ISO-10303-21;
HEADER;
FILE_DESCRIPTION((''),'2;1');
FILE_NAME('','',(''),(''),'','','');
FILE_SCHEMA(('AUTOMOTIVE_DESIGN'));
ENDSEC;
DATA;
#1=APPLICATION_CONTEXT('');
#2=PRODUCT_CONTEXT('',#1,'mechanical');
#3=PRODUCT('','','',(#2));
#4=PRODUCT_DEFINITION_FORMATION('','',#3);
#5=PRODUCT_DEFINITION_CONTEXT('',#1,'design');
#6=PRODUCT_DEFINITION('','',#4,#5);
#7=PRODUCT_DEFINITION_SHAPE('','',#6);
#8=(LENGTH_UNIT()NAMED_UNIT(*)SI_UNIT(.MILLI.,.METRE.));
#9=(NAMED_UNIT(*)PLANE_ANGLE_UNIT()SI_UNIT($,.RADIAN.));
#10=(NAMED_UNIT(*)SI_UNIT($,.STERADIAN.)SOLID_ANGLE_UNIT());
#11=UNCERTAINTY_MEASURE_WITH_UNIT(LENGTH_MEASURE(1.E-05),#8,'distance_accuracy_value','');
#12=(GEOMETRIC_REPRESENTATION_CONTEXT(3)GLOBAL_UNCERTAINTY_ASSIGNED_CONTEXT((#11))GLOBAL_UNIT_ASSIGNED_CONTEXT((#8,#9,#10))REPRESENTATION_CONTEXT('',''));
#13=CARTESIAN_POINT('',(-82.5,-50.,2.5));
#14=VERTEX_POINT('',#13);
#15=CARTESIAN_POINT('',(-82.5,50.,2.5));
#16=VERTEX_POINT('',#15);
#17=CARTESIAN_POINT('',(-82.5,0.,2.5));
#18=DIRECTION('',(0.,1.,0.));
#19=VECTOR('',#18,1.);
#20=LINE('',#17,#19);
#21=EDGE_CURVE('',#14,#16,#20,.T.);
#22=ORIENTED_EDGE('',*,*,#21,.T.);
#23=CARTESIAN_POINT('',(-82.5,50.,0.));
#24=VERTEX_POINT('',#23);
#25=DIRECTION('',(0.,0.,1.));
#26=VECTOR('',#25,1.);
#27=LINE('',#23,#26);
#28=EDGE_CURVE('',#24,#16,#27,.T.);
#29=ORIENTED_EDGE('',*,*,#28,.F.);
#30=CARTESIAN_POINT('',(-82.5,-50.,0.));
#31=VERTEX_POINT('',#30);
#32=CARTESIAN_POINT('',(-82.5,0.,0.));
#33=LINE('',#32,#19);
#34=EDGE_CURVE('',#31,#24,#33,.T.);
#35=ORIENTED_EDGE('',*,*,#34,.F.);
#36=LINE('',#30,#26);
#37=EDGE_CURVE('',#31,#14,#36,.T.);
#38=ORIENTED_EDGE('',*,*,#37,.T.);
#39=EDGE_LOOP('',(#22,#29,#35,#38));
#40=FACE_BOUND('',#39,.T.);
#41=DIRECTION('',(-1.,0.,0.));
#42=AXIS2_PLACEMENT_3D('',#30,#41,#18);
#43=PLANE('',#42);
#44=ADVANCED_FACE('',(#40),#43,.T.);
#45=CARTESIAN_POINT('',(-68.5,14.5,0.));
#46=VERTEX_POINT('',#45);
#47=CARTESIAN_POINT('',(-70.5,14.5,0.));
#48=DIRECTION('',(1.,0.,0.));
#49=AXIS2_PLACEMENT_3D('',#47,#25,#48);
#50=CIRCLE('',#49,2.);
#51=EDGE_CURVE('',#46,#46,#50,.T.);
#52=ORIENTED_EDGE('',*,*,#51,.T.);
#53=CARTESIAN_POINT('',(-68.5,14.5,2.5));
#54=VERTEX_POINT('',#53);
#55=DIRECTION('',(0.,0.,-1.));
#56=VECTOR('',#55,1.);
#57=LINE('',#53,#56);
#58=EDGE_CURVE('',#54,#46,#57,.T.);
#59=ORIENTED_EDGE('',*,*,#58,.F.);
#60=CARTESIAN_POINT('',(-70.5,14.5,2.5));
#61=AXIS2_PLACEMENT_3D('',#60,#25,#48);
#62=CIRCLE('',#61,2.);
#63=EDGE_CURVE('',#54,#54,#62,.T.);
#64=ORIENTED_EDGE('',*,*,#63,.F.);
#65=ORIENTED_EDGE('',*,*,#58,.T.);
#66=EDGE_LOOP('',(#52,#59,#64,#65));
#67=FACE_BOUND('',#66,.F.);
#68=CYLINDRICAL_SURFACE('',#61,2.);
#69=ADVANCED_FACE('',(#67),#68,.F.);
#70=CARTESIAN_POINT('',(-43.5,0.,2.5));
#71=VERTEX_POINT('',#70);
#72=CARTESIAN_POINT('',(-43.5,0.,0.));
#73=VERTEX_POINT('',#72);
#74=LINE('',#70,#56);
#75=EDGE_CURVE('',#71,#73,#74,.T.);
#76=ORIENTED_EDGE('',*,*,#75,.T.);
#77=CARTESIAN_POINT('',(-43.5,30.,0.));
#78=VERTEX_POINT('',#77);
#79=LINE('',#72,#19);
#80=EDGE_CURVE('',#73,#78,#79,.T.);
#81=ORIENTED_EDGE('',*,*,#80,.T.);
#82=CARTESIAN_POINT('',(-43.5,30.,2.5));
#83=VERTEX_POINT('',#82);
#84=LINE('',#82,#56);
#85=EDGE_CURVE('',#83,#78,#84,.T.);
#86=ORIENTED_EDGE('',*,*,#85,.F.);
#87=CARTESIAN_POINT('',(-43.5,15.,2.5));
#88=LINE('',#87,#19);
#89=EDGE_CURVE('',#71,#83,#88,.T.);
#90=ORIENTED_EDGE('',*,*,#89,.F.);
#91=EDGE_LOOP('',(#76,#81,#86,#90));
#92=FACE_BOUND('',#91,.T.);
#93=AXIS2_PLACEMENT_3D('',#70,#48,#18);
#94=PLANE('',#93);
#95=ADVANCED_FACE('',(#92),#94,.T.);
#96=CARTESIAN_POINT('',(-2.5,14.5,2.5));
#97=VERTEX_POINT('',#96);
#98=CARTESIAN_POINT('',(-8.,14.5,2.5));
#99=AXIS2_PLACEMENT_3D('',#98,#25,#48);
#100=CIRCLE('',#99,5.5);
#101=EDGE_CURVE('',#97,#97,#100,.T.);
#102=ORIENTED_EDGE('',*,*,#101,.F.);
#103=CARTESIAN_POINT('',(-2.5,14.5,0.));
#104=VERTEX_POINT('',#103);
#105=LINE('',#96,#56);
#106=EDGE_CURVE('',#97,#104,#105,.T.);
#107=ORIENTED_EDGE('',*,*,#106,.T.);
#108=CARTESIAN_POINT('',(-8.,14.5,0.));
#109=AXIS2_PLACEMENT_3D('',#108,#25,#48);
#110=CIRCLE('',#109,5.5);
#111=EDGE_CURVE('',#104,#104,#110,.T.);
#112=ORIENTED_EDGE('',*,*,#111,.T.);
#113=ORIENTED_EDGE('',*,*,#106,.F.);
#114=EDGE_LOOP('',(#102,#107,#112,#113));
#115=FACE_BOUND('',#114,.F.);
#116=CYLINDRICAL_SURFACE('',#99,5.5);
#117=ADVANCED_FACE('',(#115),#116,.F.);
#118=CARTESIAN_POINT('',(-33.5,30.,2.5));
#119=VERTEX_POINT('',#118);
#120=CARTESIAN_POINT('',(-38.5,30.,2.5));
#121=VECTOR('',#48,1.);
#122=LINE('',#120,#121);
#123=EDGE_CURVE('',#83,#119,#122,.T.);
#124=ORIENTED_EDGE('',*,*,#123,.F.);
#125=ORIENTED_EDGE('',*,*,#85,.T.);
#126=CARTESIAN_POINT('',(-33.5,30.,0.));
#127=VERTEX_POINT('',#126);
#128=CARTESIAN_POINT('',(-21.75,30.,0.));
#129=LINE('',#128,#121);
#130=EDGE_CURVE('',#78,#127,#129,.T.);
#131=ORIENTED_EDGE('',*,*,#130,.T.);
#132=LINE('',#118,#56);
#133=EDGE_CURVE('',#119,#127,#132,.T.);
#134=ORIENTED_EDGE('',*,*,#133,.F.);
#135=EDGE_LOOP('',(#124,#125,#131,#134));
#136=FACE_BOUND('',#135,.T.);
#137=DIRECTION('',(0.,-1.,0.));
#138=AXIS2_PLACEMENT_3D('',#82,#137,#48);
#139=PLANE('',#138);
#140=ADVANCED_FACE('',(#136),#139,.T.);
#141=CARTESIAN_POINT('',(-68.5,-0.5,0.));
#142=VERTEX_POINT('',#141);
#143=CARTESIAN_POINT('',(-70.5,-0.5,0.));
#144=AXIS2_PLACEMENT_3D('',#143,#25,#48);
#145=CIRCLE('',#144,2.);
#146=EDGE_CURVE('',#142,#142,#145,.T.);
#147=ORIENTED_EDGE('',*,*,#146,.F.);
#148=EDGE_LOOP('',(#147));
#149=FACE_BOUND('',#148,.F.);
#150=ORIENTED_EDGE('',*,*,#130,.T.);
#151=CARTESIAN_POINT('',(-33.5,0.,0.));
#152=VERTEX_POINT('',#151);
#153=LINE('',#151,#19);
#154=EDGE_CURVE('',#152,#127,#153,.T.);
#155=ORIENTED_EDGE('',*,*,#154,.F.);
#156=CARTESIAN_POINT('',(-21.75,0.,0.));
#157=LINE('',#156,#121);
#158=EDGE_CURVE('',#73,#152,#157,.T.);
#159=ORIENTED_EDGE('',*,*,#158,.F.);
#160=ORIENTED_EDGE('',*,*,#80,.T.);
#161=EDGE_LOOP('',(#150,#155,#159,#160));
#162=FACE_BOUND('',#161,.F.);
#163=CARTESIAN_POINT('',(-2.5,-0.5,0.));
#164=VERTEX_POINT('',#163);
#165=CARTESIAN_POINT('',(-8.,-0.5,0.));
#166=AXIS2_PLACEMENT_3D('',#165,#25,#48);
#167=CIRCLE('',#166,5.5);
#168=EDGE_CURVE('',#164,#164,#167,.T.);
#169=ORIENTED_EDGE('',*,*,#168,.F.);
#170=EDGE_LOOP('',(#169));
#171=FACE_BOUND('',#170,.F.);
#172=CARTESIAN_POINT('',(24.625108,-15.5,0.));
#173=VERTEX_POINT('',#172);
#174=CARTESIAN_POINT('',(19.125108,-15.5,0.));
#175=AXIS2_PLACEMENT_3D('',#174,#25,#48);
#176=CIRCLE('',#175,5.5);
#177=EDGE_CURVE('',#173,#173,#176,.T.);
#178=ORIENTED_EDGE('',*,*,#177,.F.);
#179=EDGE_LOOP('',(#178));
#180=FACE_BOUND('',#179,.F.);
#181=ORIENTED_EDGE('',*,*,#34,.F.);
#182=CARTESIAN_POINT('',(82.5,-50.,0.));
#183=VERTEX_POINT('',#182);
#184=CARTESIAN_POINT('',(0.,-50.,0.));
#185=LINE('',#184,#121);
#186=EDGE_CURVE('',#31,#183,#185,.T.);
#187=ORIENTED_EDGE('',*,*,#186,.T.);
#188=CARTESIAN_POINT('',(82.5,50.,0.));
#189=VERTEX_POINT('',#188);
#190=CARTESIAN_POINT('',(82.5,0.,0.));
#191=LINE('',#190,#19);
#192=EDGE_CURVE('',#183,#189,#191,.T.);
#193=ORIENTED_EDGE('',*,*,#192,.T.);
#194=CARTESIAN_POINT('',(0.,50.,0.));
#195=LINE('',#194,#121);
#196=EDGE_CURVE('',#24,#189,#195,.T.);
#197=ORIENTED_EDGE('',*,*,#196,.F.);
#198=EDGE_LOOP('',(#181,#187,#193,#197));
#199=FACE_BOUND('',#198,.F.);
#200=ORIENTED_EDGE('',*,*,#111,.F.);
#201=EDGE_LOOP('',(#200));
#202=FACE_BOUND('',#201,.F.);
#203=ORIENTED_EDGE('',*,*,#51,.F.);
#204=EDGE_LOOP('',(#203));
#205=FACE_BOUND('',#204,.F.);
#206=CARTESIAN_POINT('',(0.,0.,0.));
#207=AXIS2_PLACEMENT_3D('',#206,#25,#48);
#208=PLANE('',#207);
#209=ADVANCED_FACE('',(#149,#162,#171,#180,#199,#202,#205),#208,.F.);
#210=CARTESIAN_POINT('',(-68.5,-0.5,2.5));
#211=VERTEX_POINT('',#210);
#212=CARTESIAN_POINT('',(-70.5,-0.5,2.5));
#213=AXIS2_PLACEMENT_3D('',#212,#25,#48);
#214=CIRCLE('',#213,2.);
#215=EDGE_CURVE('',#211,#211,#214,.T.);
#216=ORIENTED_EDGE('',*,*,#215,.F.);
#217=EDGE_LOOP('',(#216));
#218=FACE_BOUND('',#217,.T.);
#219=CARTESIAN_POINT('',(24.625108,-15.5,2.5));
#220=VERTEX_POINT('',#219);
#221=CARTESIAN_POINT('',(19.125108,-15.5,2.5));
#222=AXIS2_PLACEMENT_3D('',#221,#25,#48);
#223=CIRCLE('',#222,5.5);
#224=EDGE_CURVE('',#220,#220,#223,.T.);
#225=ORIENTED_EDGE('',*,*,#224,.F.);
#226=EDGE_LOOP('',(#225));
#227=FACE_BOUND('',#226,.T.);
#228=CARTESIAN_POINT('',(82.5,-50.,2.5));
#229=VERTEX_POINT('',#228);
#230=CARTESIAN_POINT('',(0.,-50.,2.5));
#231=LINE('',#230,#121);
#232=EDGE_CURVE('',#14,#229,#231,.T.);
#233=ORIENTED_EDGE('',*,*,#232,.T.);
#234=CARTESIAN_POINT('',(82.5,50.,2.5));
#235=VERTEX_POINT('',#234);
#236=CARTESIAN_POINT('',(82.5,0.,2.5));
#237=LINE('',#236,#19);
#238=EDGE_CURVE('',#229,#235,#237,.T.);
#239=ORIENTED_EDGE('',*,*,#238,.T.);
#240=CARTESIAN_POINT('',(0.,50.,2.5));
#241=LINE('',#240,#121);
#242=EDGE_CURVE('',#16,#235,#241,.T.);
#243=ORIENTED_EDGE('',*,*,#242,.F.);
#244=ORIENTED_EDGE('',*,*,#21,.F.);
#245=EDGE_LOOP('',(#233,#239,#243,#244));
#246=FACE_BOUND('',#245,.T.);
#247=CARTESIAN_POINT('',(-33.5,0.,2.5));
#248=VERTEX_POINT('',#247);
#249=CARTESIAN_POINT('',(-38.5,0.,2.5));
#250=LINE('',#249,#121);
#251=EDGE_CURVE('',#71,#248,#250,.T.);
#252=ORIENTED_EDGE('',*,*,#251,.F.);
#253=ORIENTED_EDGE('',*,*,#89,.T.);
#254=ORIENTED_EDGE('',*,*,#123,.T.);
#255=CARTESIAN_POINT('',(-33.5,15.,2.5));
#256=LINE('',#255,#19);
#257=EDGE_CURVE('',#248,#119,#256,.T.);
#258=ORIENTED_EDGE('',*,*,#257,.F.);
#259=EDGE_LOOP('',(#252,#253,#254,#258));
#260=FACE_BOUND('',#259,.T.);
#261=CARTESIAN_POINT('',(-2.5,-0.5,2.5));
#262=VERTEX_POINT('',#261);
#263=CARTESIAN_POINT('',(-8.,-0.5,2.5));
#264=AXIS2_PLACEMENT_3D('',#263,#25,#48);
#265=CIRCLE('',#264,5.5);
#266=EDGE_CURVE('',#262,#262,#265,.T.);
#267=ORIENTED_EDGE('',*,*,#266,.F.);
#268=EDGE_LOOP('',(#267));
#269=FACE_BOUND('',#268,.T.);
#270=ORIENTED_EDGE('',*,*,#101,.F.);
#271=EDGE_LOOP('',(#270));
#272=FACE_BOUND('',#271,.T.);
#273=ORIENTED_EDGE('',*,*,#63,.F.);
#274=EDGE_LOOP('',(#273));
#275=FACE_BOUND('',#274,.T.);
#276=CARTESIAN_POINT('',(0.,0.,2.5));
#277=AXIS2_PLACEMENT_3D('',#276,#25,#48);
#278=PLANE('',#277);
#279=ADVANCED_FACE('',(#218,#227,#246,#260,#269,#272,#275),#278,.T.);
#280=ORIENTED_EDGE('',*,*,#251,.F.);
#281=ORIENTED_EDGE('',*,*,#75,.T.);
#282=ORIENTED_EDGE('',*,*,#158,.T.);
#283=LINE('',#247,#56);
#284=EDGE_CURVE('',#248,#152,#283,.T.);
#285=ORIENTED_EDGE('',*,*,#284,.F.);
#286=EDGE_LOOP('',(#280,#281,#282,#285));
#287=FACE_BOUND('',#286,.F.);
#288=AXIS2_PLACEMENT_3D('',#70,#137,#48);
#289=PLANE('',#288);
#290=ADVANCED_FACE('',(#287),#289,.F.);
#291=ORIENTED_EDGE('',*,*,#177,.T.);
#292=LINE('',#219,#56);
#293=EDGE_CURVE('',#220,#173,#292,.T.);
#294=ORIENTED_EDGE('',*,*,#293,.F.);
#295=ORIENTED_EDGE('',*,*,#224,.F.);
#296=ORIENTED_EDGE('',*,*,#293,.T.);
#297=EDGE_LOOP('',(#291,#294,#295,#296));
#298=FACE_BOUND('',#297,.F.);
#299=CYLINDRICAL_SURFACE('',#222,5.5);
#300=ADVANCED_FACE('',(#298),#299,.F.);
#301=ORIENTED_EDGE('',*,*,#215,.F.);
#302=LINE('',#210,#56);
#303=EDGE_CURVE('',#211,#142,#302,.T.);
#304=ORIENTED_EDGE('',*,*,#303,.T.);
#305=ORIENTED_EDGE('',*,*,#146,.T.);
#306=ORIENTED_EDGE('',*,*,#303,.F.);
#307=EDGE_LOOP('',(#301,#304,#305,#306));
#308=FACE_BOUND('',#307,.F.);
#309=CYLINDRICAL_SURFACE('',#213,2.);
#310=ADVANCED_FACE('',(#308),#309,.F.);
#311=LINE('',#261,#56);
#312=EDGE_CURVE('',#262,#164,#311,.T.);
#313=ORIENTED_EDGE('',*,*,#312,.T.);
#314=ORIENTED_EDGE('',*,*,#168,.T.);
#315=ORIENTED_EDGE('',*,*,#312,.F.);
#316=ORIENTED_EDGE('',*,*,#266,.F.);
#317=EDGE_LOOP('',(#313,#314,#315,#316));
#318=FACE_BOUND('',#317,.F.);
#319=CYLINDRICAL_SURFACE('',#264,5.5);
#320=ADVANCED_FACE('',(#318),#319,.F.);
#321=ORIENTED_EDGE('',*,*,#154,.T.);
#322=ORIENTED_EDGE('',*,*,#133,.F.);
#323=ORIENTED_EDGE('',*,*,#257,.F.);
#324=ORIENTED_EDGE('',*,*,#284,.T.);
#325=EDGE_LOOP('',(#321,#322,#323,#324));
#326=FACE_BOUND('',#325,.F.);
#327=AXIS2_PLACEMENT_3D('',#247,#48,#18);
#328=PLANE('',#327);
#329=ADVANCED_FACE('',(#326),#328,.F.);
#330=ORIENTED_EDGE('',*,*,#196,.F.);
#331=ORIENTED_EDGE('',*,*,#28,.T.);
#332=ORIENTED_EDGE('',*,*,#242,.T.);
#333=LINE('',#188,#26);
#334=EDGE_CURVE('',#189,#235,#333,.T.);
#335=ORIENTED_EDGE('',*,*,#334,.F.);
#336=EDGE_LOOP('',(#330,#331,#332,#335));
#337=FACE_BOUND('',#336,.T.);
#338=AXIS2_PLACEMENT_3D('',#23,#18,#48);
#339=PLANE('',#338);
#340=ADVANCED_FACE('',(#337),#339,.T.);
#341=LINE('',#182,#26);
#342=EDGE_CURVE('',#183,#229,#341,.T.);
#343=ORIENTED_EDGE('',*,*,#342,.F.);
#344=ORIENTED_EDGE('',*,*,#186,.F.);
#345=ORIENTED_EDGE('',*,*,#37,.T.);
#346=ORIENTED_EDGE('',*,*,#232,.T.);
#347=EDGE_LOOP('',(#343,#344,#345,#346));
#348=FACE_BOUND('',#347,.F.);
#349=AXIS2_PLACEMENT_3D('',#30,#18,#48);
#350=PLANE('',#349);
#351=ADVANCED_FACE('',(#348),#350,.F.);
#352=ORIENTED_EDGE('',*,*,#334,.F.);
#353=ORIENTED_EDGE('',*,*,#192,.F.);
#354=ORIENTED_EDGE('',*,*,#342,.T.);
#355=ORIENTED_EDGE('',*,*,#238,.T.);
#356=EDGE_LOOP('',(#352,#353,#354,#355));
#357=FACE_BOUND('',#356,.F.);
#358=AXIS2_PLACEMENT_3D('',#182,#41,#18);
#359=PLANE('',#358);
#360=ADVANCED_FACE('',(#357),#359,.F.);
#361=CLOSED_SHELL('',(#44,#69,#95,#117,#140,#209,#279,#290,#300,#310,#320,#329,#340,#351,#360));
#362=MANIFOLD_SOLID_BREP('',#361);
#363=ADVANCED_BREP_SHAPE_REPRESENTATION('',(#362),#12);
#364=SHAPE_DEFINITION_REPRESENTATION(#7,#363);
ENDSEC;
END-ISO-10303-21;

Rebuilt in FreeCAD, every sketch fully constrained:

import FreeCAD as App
import Part
import Sketcher


def add_polygon(sketch, points):
    """Adds a closed chain of lines whose ends are joined by coincident constraints."""
    first, n = sketch.GeometryCount, len(points)
    for a, b in zip(points, points[1:] + points[:1]):
        sketch.addGeometry(Part.LineSegment(App.Vector(*a, 0), App.Vector(*b, 0)), False)
    for i in range(n):
        sketch.addConstraint(Sketcher.Constraint("Coincident", first + i, 2, first + (i + 1) % n, 1))

doc = App.newDocument("Part")
params = doc.addObject("Spreadsheet::Sheet", "Params")
for row, (alias, value) in enumerate([
    ("sketch1_width", "165 mm"),
    ("sketch1_height", "100 mm"),
    ("pad1_length", "2.5 mm"),
    ("sketch2_diameter", "11 mm"),
    ("sketch2_diameter2", "4 mm"),
    ("sketch2_width", "10 mm"),
    ("sketch2_height", "30 mm"),
    ("pocket1_length", "25 mm"),
], start=1):
    params.set(f"A{row}", alias)
    params.set(f"B{row}", "=" + value)
    params.setAlias(f"B{row}", alias)

body = doc.addObject("PartDesign::Body", "Body")

# Sketch on XY plane
sketch1 = doc.addObject("Sketcher::SketchObject", "Sketch")
body.addObject(sketch1)
sketch1.AttachmentSupport = (doc.XY_Plane, [""])
sketch1.MapMode = "FlatFace"
add_polygon(sketch1, [(-82, 50), (-82, -50), (82, -50), (82, 50)])  # lines 0-3
sketch1.addConstraint([
    Sketcher.Constraint("Vertical", 0),
    Sketcher.Constraint("Horizontal", 1),
    Sketcher.Constraint("Vertical", 2),
    Sketcher.Constraint("Horizontal", 3),
    Sketcher.Constraint("Symmetric", 0, 2, 2, 2, -1, 1),
    Sketcher.Constraint("DistanceX", 1, 1, 1, 2, 165.0),
    Sketcher.Constraint("DistanceY", 0, 2, 0, 1, 100.0),
])
sketch1.setExpression("Constraints[9]", "Params.sketch1_width")
sketch1.setExpression("Constraints[10]", "Params.sketch1_height")
pad1 = doc.addObject("PartDesign::Pad", "Pad")
body.addObject(pad1)
pad1.Profile = sketch1
pad1.setExpression("Length", "Params.pad1_length")

# Sketch on XY plane
sketch2 = doc.addObject("Sketcher::SketchObject", "Sketch001")
body.addObject(sketch2)
sketch2.AttachmentSupport = (doc.XY_Plane, [""])
sketch2.MapMode = "FlatFace"
sketch2.AttachmentOffset = App.Placement(App.Vector(0, 0, 2.5), App.Rotation())
sketch2.addGeometry(Part.Circle(App.Vector(-8, 14.5, 0), App.Vector(0, 0, 1), 5.5), False)  # 0
sketch2.addGeometry(Part.Circle(App.Vector(-8, -0.5, 0), App.Vector(0, 0, 1), 5.5), False)  # 1
sketch2.addGeometry(Part.Circle(App.Vector(19.1, -15.5, 0), App.Vector(0, 0, 1), 5.5), False)  # 2
add_polygon(sketch2, [(-43.5, 30), (-43.5, 0), (-33.5, 0), (-33.5, 30)])  # lines 3-6
sketch2.addGeometry(Part.Circle(App.Vector(-70.5, 14.5, 0), App.Vector(0, 0, 1), 2), False)  # 7
sketch2.addGeometry(Part.Circle(App.Vector(-70.5, -0.5, 0), App.Vector(0, 0, 1), 2), False)  # 8
sketch2.addConstraint([
    Sketcher.Constraint("Vertical", 3),
    Sketcher.Constraint("Horizontal", 4),
    Sketcher.Constraint("Vertical", 5),
    Sketcher.Constraint("Horizontal", 6),
    Sketcher.Constraint("Equal", 0, 1),
    Sketcher.Constraint("Equal", 1, 2),
    Sketcher.Constraint("Equal", 7, 8),
    Sketcher.Constraint("PointOnObject", 3, 2, -1),
    Sketcher.Constraint("Horizontal", 0, 3, 7, 3),
    Sketcher.Constraint("Horizontal", 1, 3, 8, 3),
    Sketcher.Constraint("Vertical", 0, 3, 1, 3),
    Sketcher.Constraint("Vertical", 7, 3, 8, 3),
    Sketcher.Constraint("Diameter", 0, 11.0),
    Sketcher.Constraint("Diameter", 7, 4.0),
    Sketcher.Constraint("DistanceX", 4, 1, 4, 2, 10.0),
    Sketcher.Constraint("DistanceY", 3, 2, 3, 1, 30.0),
    Sketcher.Constraint("DistanceX", 0, 3, -1, 1, 8.0),
    Sketcher.Constraint("DistanceY", 1, 3, 0, 3, 15.0),
    Sketcher.Constraint("DistanceY", 2, 3, 1, 3, 15.0),
    Sketcher.Constraint("DistanceX", 8, 3, 3, 2, 27.0),
    Sketcher.Constraint("DistanceY", -1, 1, 0, 3, 14.5),
    Sketcher.Constraint("DistanceX", 7, 3, -1, 1, 70.5),
    Sketcher.Constraint("DistanceX", -1, 1, 2, 3, 19.125108),
])
sketch2.setExpression("Constraints[16]", "Params.sketch2_diameter")
sketch2.setExpression("Constraints[17]", "Params.sketch2_diameter2")
sketch2.setExpression("Constraints[18]", "Params.sketch2_width")
sketch2.setExpression("Constraints[19]", "Params.sketch2_height")
pocket1 = doc.addObject("PartDesign::Pocket", "Pocket")
body.addObject(pocket1)
pocket1.Profile = sketch2
pocket1.setExpression("Length", "Params.pocket1_length")

doc.recompute()
